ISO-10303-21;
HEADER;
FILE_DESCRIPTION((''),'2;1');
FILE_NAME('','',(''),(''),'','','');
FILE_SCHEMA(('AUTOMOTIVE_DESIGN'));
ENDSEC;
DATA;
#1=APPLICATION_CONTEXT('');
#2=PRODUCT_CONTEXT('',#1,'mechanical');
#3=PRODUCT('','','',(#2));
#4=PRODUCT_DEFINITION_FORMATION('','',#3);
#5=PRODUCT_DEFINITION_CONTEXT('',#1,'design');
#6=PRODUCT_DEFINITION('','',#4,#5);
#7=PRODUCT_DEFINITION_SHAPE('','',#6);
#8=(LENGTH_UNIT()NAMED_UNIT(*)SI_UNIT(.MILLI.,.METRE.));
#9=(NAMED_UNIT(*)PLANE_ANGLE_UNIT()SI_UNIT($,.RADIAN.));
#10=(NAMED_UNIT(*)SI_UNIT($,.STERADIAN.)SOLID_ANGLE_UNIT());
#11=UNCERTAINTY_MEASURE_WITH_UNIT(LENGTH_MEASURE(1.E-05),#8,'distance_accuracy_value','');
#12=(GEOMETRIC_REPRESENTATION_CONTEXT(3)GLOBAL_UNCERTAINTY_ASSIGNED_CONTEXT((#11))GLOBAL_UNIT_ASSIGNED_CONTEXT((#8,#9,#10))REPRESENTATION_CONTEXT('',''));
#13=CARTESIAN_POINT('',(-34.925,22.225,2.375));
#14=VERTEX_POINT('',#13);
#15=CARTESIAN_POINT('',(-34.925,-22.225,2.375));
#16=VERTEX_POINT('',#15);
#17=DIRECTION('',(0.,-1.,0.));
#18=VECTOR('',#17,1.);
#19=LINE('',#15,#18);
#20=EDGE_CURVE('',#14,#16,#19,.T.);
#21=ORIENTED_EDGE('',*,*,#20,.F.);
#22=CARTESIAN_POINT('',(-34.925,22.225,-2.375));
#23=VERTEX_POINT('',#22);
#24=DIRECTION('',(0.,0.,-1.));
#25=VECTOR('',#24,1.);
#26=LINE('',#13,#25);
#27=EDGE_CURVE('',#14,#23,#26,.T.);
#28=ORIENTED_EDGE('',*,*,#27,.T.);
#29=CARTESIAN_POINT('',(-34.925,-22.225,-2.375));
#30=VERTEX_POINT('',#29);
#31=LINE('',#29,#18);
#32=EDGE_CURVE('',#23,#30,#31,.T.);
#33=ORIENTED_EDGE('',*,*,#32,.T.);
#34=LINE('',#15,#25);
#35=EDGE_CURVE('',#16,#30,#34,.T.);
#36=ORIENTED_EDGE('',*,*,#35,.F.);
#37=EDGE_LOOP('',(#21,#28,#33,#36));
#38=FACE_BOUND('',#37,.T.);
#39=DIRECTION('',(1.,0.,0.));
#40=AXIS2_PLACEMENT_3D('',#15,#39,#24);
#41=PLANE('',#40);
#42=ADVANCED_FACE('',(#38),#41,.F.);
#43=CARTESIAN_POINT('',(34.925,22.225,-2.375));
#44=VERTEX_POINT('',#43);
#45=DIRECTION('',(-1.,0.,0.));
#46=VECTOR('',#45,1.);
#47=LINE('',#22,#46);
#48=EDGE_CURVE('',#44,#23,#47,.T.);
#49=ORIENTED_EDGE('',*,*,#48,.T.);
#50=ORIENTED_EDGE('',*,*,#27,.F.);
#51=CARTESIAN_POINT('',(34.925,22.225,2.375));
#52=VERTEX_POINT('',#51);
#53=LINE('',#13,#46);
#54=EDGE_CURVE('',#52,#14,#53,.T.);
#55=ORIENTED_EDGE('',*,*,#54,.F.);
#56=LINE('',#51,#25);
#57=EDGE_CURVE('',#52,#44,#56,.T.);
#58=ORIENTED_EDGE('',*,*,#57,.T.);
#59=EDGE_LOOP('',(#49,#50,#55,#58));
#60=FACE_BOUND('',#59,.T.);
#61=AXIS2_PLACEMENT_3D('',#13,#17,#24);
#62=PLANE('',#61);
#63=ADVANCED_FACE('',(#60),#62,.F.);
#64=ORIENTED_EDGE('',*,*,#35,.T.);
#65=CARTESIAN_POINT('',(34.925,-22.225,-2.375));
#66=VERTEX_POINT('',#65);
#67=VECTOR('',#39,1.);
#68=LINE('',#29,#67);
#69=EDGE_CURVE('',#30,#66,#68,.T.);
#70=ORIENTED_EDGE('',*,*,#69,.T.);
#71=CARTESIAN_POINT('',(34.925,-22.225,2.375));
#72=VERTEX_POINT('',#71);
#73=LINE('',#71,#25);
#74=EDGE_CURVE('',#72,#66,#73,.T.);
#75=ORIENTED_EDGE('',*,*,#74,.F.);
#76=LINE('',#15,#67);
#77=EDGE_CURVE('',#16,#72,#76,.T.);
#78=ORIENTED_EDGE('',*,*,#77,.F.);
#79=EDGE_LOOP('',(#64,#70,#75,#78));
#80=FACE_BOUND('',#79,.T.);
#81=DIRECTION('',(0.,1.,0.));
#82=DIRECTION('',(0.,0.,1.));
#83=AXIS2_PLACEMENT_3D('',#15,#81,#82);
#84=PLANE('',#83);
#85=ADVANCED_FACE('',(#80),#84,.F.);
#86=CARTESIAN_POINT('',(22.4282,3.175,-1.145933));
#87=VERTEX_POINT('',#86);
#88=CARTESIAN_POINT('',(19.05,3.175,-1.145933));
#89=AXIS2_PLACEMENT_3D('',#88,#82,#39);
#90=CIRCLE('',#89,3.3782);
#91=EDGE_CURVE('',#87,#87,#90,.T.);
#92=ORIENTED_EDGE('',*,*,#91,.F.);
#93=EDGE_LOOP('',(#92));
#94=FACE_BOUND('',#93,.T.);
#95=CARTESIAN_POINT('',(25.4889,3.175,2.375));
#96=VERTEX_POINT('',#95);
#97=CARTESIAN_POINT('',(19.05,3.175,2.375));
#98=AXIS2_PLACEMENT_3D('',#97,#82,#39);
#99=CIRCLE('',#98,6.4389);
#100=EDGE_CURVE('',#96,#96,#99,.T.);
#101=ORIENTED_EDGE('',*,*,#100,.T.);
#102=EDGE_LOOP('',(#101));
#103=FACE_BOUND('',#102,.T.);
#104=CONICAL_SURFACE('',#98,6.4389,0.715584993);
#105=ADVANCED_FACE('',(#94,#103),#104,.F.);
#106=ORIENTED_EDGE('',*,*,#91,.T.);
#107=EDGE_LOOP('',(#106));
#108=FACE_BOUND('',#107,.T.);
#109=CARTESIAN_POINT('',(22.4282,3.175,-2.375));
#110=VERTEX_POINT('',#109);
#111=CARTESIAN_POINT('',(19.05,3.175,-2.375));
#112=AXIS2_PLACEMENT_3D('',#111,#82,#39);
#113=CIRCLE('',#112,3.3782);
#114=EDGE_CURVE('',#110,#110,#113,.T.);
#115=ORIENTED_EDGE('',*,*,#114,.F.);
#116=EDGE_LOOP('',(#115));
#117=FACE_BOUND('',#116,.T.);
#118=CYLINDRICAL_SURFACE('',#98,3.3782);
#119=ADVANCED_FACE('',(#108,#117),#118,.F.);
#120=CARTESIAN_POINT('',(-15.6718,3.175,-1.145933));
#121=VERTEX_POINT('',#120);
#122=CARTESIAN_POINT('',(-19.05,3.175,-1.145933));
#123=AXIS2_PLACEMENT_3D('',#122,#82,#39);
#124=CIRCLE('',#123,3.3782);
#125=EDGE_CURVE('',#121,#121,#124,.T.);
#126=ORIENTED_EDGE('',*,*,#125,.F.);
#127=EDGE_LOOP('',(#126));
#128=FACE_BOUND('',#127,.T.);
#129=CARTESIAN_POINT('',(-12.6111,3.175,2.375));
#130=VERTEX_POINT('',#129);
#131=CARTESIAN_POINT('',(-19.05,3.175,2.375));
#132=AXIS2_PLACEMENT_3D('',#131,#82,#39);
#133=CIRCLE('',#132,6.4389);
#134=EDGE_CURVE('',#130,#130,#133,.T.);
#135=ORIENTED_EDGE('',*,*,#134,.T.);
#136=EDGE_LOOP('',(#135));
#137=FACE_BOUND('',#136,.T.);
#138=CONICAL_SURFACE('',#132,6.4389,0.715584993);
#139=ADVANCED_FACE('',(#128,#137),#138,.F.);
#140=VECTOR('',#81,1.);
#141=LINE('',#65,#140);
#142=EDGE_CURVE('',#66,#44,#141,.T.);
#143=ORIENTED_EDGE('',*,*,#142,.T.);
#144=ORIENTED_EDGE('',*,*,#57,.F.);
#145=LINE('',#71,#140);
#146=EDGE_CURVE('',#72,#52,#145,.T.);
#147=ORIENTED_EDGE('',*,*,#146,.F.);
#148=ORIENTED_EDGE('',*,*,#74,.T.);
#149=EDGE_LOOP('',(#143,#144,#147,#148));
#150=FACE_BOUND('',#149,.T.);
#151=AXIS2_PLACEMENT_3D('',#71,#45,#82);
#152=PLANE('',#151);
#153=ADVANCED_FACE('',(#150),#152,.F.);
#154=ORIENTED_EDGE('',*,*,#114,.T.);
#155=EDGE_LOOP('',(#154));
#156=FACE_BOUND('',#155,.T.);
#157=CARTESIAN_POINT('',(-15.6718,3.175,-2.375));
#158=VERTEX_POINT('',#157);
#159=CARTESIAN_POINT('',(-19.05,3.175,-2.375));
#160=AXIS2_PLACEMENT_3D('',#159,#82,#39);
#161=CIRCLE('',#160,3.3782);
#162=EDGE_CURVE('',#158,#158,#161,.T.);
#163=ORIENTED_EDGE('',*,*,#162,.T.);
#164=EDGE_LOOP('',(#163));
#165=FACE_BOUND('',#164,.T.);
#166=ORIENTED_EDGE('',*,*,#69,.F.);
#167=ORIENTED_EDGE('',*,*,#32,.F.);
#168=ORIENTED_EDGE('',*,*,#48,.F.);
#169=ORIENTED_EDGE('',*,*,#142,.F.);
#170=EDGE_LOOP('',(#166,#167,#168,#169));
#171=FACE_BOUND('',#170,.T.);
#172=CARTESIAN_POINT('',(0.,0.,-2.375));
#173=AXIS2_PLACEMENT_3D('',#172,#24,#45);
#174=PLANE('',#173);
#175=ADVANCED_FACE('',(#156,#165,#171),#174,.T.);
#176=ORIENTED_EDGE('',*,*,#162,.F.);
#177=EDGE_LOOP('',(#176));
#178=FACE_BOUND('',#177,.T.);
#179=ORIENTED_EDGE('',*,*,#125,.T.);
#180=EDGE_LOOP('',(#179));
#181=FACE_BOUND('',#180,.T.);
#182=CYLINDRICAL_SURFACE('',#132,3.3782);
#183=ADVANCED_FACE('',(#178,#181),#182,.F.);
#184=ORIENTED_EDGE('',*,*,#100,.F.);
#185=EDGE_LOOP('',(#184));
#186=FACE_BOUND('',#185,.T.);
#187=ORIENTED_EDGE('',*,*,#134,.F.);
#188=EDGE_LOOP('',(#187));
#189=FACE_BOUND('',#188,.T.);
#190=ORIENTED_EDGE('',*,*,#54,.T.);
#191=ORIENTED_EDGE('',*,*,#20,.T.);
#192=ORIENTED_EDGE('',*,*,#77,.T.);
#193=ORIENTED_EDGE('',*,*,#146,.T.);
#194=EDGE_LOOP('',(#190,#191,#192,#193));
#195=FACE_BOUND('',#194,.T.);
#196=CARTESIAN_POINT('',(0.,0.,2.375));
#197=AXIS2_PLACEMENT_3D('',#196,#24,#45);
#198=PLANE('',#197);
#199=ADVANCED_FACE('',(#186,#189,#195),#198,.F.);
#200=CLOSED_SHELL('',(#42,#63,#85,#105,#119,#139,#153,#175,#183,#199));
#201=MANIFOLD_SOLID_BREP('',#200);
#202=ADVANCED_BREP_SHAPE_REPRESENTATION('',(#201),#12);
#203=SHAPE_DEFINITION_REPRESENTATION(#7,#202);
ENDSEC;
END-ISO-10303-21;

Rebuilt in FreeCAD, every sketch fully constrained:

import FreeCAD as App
import Part
import Sketcher
from FreeCAD import Vector
Q = App.Units.Quantity


def add_polygon(sketch, points):
    """Adds a closed chain of lines whose ends are joined by coincident constraints."""
    first, n = sketch.GeometryCount, len(points)
    for a, b in zip(points, points[1:] + points[:1]):
        sketch.addGeometry(Part.LineSegment(App.Vector(*a, 0), App.Vector(*b, 0)), False)
    for i in range(n):
        sketch.addConstraint(Sketcher.Constraint("Coincident", first + i, 2, first + (i + 1) % n, 1))

doc = App.newDocument("Part")
body = doc.addObject("PartDesign::Body", "Body")

# Sketch on XY plane
sketch1 = doc.addObject("Sketcher::SketchObject", "Sketch")
body.addObject(sketch1)
sketch1.AttachmentSupport = (doc.XY_Plane, [""])
sketch1.MapMode = "FlatFace"
add_polygon(sketch1, [(-35, 22), (-35, -22), (35, -22), (35, 22)])  # lines 0-3
sketch1.addConstraint(Sketcher.Constraint("Vertical", 0))
sketch1.addConstraint(Sketcher.Constraint("Horizontal", 1))
sketch1.addConstraint(Sketcher.Constraint("Vertical", 2))
sketch1.addConstraint(Sketcher.Constraint("Horizontal", 3))
sketch1.addConstraint(Sketcher.Constraint("Symmetric", 0, 2, 2, 2, -1, 1))
sketch1.addConstraint(Sketcher.Constraint("DistanceX", 1, 1, 1, 2, Q("2.75 in")))
sketch1.addConstraint(Sketcher.Constraint("DistanceY", 0, 2, 0, 1, Q("1.75 in")))
pad1 = doc.addObject("PartDesign::Pad", "Pad")
body.addObject(pad1)
pad1.Profile = sketch1
pad1.Length = 4.75
pad1.Midplane = True

# Sketch on YZ plane
sketch2 = doc.addObject("Sketcher::SketchObject", "Sketch001")
body.addObject(sketch2)
sketch2.AttachmentSupport = (doc.YZ_Plane, [""])
sketch2.MapMode = "FlatFace"
sketch2.AttachmentOffset = App.Placement(Vector(0, 0, -0.75 * 25.4), App.Rotation())
add_polygon(sketch2, [(3.2, -2.4), (3.2, 2.4), (-3.3, 2.4), (-0.2, -1.1), (-0.2, -2.4)])  # lines 0-4
sketch2.addGeometry(Part.LineSegment(Vector(3.2, 2.4, 0), Vector(3.2, -2.4, 0)), True)  # axis
sketch2.addConstraint(Sketcher.Constraint("Vertical", 0))
sketch2.addConstraint(Sketcher.Constraint("Horizontal", 1))
sketch2.addConstraint(Sketcher.Constraint("Vertical", 3))
sketch2.addConstraint(Sketcher.Constraint("Horizontal", 4))
sketch2.addConstraint(Sketcher.Constraint("Vertical", 5))
sketch2.addConstraint(Sketcher.Constraint("Coincident", 5, 1, 0, 2))
sketch2.addConstraint(Sketcher.Constraint("Horizontal", 3, 2, 5, 2))
sketch2.addConstraint(Sketcher.Constraint("Angle", 2, Q("-49 deg")))
sketch2.addConstraint(Sketcher.Constraint("DistanceX", 4, 1, 4, 2, Q("0.133 in")))
sketch2.addConstraint(Sketcher.Constraint("DistanceX", 1, 2, 1, 1, Q("0.2535 in")))
sketch2.addConstraint(Sketcher.Constraint("DistanceX", -1, 1, 0, 2, Q("0.125 in")))
sketch2.addConstraint(Sketcher.Constraint("DistanceY", 0, 1, 0, 2, Q("4.75 mm")))
sketch2.addConstraint(Sketcher.Constraint("DistanceY", -1, 1, 0, 2, Q("2.375 mm")))
groove = doc.addObject("PartDesign::Groove", "Groove")
body.addObject(groove)
groove.Profile = sketch2
groove.ReferenceAxis = (sketch2, ["Axis0"])
groove.Angle = 360
doc.recompute()

mirrored = doc.addObject("PartDesign::Mirrored", "Mirrored")
body.addObject(mirrored)
mirrored.Originals = [groove]
mirrored.MirrorPlane = (doc.YZ_Plane, [""])
body.Tip = mirrored

doc.recompute()
